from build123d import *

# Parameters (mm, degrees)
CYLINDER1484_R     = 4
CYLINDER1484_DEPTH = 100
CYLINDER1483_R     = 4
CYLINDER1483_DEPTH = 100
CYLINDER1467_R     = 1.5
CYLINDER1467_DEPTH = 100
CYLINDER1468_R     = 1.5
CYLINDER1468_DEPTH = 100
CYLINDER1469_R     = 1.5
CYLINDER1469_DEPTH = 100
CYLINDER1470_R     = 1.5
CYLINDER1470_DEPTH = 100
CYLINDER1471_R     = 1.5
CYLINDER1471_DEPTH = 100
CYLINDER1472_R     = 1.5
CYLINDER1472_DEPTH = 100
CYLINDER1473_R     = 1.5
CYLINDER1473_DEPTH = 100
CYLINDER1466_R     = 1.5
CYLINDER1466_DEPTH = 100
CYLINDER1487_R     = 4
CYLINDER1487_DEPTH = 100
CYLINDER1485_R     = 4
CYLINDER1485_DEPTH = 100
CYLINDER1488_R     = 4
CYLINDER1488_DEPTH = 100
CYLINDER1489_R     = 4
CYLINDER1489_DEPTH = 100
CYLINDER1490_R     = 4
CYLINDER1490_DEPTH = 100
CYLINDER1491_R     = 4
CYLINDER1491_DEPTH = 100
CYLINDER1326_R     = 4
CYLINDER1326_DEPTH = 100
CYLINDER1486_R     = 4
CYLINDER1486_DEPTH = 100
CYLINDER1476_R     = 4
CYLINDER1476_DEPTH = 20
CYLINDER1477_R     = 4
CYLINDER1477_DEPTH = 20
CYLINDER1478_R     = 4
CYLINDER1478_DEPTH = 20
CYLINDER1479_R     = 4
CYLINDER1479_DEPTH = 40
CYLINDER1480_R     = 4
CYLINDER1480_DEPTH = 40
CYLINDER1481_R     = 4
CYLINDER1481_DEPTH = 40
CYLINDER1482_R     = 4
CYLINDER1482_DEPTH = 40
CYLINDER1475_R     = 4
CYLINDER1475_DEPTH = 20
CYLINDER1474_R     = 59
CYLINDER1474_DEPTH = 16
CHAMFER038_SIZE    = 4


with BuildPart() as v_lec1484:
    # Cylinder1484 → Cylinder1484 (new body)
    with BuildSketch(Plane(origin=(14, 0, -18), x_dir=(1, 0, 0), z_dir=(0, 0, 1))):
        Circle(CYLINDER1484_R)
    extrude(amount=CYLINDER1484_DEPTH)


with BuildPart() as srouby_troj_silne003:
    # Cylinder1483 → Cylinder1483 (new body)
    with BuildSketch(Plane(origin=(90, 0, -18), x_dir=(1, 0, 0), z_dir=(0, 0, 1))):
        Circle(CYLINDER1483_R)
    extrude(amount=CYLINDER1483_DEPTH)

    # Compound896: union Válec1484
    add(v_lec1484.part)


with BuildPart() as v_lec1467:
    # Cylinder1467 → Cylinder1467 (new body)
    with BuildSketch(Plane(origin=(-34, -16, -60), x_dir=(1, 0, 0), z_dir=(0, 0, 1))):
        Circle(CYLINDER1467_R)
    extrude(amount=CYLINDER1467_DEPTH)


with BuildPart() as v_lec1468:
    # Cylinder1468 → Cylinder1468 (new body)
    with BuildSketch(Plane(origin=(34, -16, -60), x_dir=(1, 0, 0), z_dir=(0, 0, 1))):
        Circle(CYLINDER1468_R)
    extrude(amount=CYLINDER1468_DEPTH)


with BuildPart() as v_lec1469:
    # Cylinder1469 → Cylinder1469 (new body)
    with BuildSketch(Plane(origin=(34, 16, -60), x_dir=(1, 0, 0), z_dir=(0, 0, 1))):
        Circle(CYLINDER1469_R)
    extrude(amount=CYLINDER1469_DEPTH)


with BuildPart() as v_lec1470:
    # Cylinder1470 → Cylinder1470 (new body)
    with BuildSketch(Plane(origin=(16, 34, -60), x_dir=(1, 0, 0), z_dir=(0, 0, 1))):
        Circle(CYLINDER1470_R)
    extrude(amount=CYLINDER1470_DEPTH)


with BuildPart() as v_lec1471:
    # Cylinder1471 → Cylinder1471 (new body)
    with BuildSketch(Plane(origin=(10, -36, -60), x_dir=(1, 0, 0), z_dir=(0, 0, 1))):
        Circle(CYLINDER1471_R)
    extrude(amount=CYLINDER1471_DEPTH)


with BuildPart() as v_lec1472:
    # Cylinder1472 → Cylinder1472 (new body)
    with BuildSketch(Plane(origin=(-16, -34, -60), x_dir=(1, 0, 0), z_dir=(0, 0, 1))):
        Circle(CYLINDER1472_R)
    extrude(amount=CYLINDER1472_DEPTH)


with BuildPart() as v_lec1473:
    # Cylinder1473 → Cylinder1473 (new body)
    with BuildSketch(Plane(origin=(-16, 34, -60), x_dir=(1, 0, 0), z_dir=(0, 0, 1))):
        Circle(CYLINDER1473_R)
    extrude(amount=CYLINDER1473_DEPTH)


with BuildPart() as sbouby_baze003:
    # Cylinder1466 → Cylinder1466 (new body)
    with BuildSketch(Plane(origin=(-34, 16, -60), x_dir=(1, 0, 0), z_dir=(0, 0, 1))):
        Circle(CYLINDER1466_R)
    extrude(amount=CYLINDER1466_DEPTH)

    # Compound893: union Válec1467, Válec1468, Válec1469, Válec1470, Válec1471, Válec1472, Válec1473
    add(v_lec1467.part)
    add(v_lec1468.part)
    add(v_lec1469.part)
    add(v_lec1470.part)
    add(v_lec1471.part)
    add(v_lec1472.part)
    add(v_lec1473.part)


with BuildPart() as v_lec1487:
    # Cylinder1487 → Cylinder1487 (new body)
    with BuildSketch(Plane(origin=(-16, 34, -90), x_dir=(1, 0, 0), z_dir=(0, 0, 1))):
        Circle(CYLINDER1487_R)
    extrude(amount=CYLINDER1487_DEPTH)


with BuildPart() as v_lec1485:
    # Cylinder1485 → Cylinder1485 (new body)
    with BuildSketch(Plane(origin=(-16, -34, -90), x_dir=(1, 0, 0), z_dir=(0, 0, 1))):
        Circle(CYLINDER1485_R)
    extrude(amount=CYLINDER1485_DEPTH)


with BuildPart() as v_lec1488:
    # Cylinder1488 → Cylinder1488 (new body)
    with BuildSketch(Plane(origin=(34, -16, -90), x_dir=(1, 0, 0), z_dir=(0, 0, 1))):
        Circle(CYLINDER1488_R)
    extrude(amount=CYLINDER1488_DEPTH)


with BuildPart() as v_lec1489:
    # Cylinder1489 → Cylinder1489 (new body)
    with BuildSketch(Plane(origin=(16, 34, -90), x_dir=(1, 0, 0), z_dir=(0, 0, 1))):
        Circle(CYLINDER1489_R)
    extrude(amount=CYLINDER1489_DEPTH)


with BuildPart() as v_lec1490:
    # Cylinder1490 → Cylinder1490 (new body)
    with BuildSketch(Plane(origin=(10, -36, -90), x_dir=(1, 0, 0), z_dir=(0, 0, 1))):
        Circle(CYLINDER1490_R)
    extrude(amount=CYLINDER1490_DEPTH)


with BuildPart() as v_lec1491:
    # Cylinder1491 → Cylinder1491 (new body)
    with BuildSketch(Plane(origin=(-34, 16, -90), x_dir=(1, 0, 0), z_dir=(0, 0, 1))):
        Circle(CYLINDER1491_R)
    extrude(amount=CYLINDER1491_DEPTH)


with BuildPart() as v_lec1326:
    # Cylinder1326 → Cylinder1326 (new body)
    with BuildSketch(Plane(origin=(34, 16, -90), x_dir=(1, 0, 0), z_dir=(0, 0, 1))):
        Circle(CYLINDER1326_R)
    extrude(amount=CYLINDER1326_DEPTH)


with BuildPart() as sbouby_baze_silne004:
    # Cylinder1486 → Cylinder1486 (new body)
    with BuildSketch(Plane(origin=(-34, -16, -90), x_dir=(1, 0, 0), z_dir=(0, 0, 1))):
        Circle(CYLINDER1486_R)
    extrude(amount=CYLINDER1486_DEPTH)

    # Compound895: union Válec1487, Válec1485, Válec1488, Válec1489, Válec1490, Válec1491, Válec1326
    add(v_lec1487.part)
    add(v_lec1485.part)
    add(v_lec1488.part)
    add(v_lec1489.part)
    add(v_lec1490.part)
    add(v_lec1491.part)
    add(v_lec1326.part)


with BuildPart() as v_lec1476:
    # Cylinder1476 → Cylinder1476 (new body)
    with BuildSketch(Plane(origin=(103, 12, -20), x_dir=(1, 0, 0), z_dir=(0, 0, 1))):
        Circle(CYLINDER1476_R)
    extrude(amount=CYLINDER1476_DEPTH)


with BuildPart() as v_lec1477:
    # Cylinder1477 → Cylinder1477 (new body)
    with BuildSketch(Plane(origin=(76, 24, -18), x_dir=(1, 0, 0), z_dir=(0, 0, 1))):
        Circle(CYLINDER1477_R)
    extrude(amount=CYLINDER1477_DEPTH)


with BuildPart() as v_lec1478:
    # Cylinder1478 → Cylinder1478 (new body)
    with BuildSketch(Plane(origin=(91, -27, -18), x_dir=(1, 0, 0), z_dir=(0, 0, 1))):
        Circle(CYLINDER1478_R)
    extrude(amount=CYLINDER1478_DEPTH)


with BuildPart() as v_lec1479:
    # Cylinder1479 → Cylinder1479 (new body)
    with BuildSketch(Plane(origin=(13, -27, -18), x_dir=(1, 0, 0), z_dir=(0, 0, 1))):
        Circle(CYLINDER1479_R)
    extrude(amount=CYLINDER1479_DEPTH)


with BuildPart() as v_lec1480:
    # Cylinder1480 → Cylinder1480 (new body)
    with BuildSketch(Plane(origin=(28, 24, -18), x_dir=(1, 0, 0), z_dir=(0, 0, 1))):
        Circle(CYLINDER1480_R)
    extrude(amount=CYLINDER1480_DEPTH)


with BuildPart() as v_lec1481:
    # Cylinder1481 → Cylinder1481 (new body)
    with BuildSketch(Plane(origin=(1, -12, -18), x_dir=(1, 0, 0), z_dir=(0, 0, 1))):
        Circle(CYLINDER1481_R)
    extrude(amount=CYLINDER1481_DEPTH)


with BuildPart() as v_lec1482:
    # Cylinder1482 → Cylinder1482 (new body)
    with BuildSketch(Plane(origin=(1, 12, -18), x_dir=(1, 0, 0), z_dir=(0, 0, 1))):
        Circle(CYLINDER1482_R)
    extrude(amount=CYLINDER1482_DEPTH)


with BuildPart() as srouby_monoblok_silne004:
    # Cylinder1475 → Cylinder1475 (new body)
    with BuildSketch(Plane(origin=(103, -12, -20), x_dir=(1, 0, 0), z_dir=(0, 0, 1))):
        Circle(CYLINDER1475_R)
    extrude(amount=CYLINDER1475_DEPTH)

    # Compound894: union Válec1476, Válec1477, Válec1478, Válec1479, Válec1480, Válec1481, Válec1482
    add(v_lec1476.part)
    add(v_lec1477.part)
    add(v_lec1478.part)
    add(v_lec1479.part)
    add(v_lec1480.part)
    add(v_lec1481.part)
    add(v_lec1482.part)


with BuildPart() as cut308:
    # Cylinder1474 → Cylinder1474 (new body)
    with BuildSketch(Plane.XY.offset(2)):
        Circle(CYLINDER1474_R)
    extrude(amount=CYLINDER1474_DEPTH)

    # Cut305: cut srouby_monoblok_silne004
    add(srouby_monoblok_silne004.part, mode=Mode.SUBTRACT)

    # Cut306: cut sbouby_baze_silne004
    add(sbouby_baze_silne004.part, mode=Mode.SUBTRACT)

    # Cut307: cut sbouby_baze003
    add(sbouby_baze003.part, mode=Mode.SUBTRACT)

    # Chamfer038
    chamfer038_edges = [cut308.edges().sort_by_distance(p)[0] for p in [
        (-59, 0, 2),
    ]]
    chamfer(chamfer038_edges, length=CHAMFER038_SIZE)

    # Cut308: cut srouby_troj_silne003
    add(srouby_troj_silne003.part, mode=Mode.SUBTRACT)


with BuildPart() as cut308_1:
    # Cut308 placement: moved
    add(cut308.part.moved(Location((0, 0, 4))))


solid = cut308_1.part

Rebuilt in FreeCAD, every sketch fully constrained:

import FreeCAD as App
import Part
import Sketcher


def edges_at(feature, points):
    """Names of the edges that pass closest to the given points."""
    edges = feature.Shape.Edges
    near = lambda p: min(range(len(edges)), key=lambda i: edges[i].distToShape(Part.Vertex(*p))[0])
    return sorted({f"Edge{near(p) + 1}" for p in points})

doc = App.newDocument("Part")
body = doc.addObject("PartDesign::Body", "Body")

sketch1 = body.newObject("Sketcher::SketchObject", "Sketch")
sketch1.AttachmentSupport = (doc.getObject("XY_Plane"), [""])
sketch1.MapMode = "FlatFace"
sketch1.AttachmentOffset = App.Placement(App.Vector(0, 0, -18), App.Rotation())
sketch1.addGeometry(Part.Circle(App.Vector(14, 0, 0), App.Vector(0, 0, 1), 4), False)
sketch1.addConstraint([
    Sketcher.Constraint("PointOnObject", 0, 3, -1),
    Sketcher.Constraint("Diameter", 0, 8.0),
    Sketcher.Constraint("DistanceX", -1, 1, 0, 3, 14.0),
])
pad1 = body.newObject("PartDesign::Pad", "Pad")
pad1.Profile = sketch1
pad1.Length = 100
body2 = doc.addObject("PartDesign::Body", "Body001")
body2.AllowCompound = True

sketch2 = body2.newObject("Sketcher::SketchObject", "Sketch001")
sketch2.AttachmentSupport = (doc.getObject("XY_Plane001"), [""])
sketch2.MapMode = "FlatFace"
sketch2.AttachmentOffset = App.Placement(App.Vector(0, 0, -18), App.Rotation())
sketch2.addGeometry(Part.Circle(App.Vector(90, 0, 0), App.Vector(0, 0, 1), 4), False)
sketch2.addConstraint([
    Sketcher.Constraint("PointOnObject", 0, 3, -1),
    Sketcher.Constraint("Diameter", 0, 8.0),
    Sketcher.Constraint("DistanceX", -1, 1, 0, 3, 90.0),
])
pad2 = body2.newObject("PartDesign::Pad", "Pad001")
pad2.Profile = sketch2
pad2.Length = 100
doc.recompute()

boolean = body2.newObject("PartDesign::Boolean", "Boolean")
boolean.Type = "Fuse"
boolean.addObjects([body])
body3 = doc.addObject("PartDesign::Body", "Body002")

sketch3 = body3.newObject("Sketcher::SketchObject", "Sketch002")
sketch3.AttachmentSupport = (doc.getObject("XY_Plane002"), [""])
sketch3.MapMode = "FlatFace"
sketch3.AttachmentOffset = App.Placement(App.Vector(0, 0, -60), App.Rotation())
sketch3.addGeometry(Part.Circle(App.Vector(-34, -16, 0), App.Vector(0, 0, 1), 1.5), False)
sketch3.addConstraint([
    Sketcher.Constraint("Diameter", 0, 3.0),
    Sketcher.Constraint("DistanceX", 0, 3, -1, 1, 34.0),
    Sketcher.Constraint("DistanceY", 0, 3, -1, 1, 16.0),
])
pad3 = body3.newObject("PartDesign::Pad", "Pad002")
pad3.Profile = sketch3
pad3.Length = 100
body4 = doc.addObject("PartDesign::Body", "Body003")

sketch4 = body4.newObject("Sketcher::SketchObject", "Sketch003")
sketch4.AttachmentSupport = (doc.getObject("XY_Plane003"), [""])
sketch4.MapMode = "FlatFace"
sketch4.AttachmentOffset = App.Placement(App.Vector(0, 0, -60), App.Rotation())
sketch4.addGeometry(Part.Circle(App.Vector(34, -16, 0), App.Vector(0, 0, 1), 1.5), False)
sketch4.addConstraint([
    Sketcher.Constraint("Diameter", 0, 3.0),
    Sketcher.Constraint("DistanceX", -1, 1, 0, 3, 34.0),
    Sketcher.Constraint("DistanceY", 0, 3, -1, 1, 16.0),
])
pad4 = body4.newObject("PartDesign::Pad", "Pad003")
pad4.Profile = sketch4
pad4.Length = 100
body5 = doc.addObject("PartDesign::Body", "Body004")

sketch5 = body5.newObject("Sketcher::SketchObject", "Sketch004")
sketch5.AttachmentSupport = (doc.getObject("XY_Plane004"), [""])
sketch5.MapMode = "FlatFace"
sketch5.AttachmentOffset = App.Placement(App.Vector(0, 0, -60), App.Rotation())
sketch5.addGeometry(Part.Circle(App.Vector(34, 16, 0), App.Vector(0, 0, 1), 1.5), False)
sketch5.addConstraint([
    Sketcher.Constraint("Diameter", 0, 3.0),
    Sketcher.Constraint("DistanceX", -1, 1, 0, 3, 34.0),
    Sketcher.Constraint("DistanceY", -1, 1, 0, 3, 16.0),
])
pad5 = body5.newObject("PartDesign::Pad", "Pad004")
pad5.Profile = sketch5
pad5.Length = 100
body6 = doc.addObject("PartDesign::Body", "Body005")

sketch6 = body6.newObject("Sketcher::SketchObject", "Sketch005")
sketch6.AttachmentSupport = (doc.getObject("XY_Plane005"), [""])
sketch6.MapMode = "FlatFace"
sketch6.AttachmentOffset = App.Placement(App.Vector(0, 0, -60), App.Rotation())
sketch6.addGeometry(Part.Circle(App.Vector(16, 34, 0), App.Vector(0, 0, 1), 1.5), False)
sketch6.addConstraint([
    Sketcher.Constraint("Diameter", 0, 3.0),
    Sketcher.Constraint("DistanceX", -1, 1, 0, 3, 16.0),
    Sketcher.Constraint("DistanceY", -1, 1, 0, 3, 34.0),
])
pad6 = body6.newObject("PartDesign::Pad", "Pad005")
pad6.Profile = sketch6
pad6.Length = 100
body7 = doc.addObject("PartDesign::Body", "Body006")

sketch7 = body7.newObject("Sketcher::SketchObject", "Sketch006")
sketch7.AttachmentSupport = (doc.getObject("XY_Plane006"), [""])
sketch7.MapMode = "FlatFace"
sketch7.AttachmentOffset = App.Placement(App.Vector(0, 0, -60), App.Rotation())
sketch7.addGeometry(Part.Circle(App.Vector(10, -36, 0), App.Vector(0, 0, 1), 1.5), False)
sketch7.addConstraint([
    Sketcher.Constraint("Diameter", 0, 3.0),
    Sketcher.Constraint("DistanceX", -1, 1, 0, 3, 10.0),
    Sketcher.Constraint("DistanceY", 0, 3, -1, 1, 36.0),
])
pad7 = body7.newObject("PartDesign::Pad", "Pad006")
pad7.Profile = sketch7
pad7.Length = 100
body8 = doc.addObject("PartDesign::Body", "Body007")

sketch8 = body8.newObject("Sketcher::SketchObject", "Sketch007")
sketch8.AttachmentSupport = (doc.getObject("XY_Plane007"), [""])
sketch8.MapMode = "FlatFace"
sketch8.AttachmentOffset = App.Placement(App.Vector(0, 0, -60), App.Rotation())
sketch8.addGeometry(Part.Circle(App.Vector(-16, -34, 0), App.Vector(0, 0, 1), 1.5), False)
sketch8.addConstraint([
    Sketcher.Constraint("Diameter", 0, 3.0),
    Sketcher.Constraint("DistanceX", 0, 3, -1, 1, 16.0),
    Sketcher.Constraint("DistanceY", 0, 3, -1, 1, 34.0),
])
pad8 = body8.newObject("PartDesign::Pad", "Pad007")
pad8.Profile = sketch8
pad8.Length = 100
body9 = doc.addObject("PartDesign::Body", "Body008")

sketch9 = body9.newObject("Sketcher::SketchObject", "Sketch008")
sketch9.AttachmentSupport = (doc.getObject("XY_Plane008"), [""])
sketch9.MapMode = "FlatFace"
sketch9.AttachmentOffset = App.Placement(App.Vector(0, 0, -60), App.Rotation())
sketch9.addGeometry(Part.Circle(App.Vector(-16, 34, 0), App.Vector(0, 0, 1), 1.5), False)
sketch9.addConstraint([
    Sketcher.Constraint("Diameter", 0, 3.0),
    Sketcher.Constraint("DistanceX", 0, 3, -1, 1, 16.0),
    Sketcher.Constraint("DistanceY", -1, 1, 0, 3, 34.0),
])
pad9 = body9.newObject("PartDesign::Pad", "Pad008")
pad9.Profile = sketch9
pad9.Length = 100
body10 = doc.addObject("PartDesign::Body", "Body009")
body10.AllowCompound = True

sketch10 = body10.newObject("Sketcher::SketchObject", "Sketch009")
sketch10.AttachmentSupport = (doc.getObject("XY_Plane009"), [""])
sketch10.MapMode = "FlatFace"
sketch10.AttachmentOffset = App.Placement(App.Vector(0, 0, -60), App.Rotation())
sketch10.addGeometry(Part.Circle(App.Vector(-34, 16, 0), App.Vector(0, 0, 1), 1.5), False)
sketch10.addConstraint([
    Sketcher.Constraint("Diameter", 0, 3.0),
    Sketcher.Constraint("DistanceX", 0, 3, -1, 1, 34.0),
    Sketcher.Constraint("DistanceY", -1, 1, 0, 3, 16.0),
])
pad10 = body10.newObject("PartDesign::Pad", "Pad009")
pad10.Profile = sketch10
pad10.Length = 100
doc.recompute()

boolean2 = body10.newObject("PartDesign::Boolean", "Boolean001")
boolean2.Type = "Fuse"
boolean2.addObjects([body3])
doc.recompute()

boolean3 = body10.newObject("PartDesign::Boolean", "Boolean002")
boolean3.Type = "Fuse"
boolean3.addObjects([body4])
doc.recompute()

boolean4 = body10.newObject("PartDesign::Boolean", "Boolean003")
boolean4.Type = "Fuse"
boolean4.addObjects([body5])
doc.recompute()

boolean5 = body10.newObject("PartDesign::Boolean", "Boolean004")
boolean5.Type = "Fuse"
boolean5.addObjects([body6])
doc.recompute()

boolean6 = body10.newObject("PartDesign::Boolean", "Boolean005")
boolean6.Type = "Fuse"
boolean6.addObjects([body7])
doc.recompute()

boolean7 = body10.newObject("PartDesign::Boolean", "Boolean006")
boolean7.Type = "Fuse"
boolean7.addObjects([body8])
doc.recompute()

boolean8 = body10.newObject("PartDesign::Boolean", "Boolean007")
boolean8.Type = "Fuse"
boolean8.addObjects([body9])
body11 = doc.addObject("PartDesign::Body", "Body010")

sketch11 = body11.newObject("Sketcher::SketchObject", "Sketch010")
sketch11.AttachmentSupport = (doc.getObject("XY_Plane010"), [""])
sketch11.MapMode = "FlatFace"
sketch11.AttachmentOffset = App.Placement(App.Vector(0, 0, -90), App.Rotation())
sketch11.addGeometry(Part.Circle(App.Vector(-16, 34, 0), App.Vector(0, 0, 1), 4), False)
sketch11.addConstraint([
    Sketcher.Constraint("Diameter", 0, 8.0),
    Sketcher.Constraint("DistanceX", 0, 3, -1, 1, 16.0),
    Sketcher.Constraint("DistanceY", -1, 1, 0, 3, 34.0),
])
pad11 = body11.newObject("PartDesign::Pad", "Pad010")
pad11.Profile = sketch11
pad11.Length = 100
body12 = doc.addObject("PartDesign::Body", "Body011")

sketch12 = body12.newObject("Sketcher::SketchObject", "Sketch011")
sketch12.AttachmentSupport = (doc.getObject("XY_Plane011"), [""])
sketch12.MapMode = "FlatFace"
sketch12.AttachmentOffset = App.Placement(App.Vector(0, 0, -90), App.Rotation())
sketch12.addGeometry(Part.Circle(App.Vector(-16, -34, 0), App.Vector(0, 0, 1), 4), False)
sketch12.addConstraint([
    Sketcher.Constraint("Diameter", 0, 8.0),
    Sketcher.Constraint("DistanceX", 0, 3, -1, 1, 16.0),
    Sketcher.Constraint("DistanceY", 0, 3, -1, 1, 34.0),
])
pad12 = body12.newObject("PartDesign::Pad", "Pad011")
pad12.Profile = sketch12
pad12.Length = 100
body13 = doc.addObject("PartDesign::Body", "Body012")

sketch13 = body13.newObject("Sketcher::SketchObject", "Sketch012")
sketch13.AttachmentSupport = (doc.getObject("XY_Plane012"), [""])
sketch13.MapMode = "FlatFace"
sketch13.AttachmentOffset = App.Placement(App.Vector(0, 0, -90), App.Rotation())
sketch13.addGeometry(Part.Circle(App.Vector(34, -16, 0), App.Vector(0, 0, 1), 4), False)
sketch13.addConstraint([
    Sketcher.Constraint("Diameter", 0, 8.0),
    Sketcher.Constraint("DistanceX", -1, 1, 0, 3, 34.0),
    Sketcher.Constraint("DistanceY", 0, 3, -1, 1, 16.0),
])
pad13 = body13.newObject("PartDesign::Pad", "Pad012")
pad13.Profile = sketch13
pad13.Length = 100
body14 = doc.addObject("PartDesign::Body", "Body013")

sketch14 = body14.newObject("Sketcher::SketchObject", "Sketch013")
sketch14.AttachmentSupport = (doc.getObject("XY_Plane013"), [""])
sketch14.MapMode = "FlatFace"
sketch14.AttachmentOffset = App.Placement(App.Vector(0, 0, -90), App.Rotation())
sketch14.addGeometry(Part.Circle(App.Vector(16, 34, 0), App.Vector(0, 0, 1), 4), False)
sketch14.addConstraint([
    Sketcher.Constraint("Diameter", 0, 8.0),
    Sketcher.Constraint("DistanceX", -1, 1, 0, 3, 16.0),
    Sketcher.Constraint("DistanceY", -1, 1, 0, 3, 34.0),
])
pad14 = body14.newObject("PartDesign::Pad", "Pad013")
pad14.Profile = sketch14
pad14.Length = 100
body15 = doc.addObject("PartDesign::Body", "Body014")

sketch15 = body15.newObject("Sketcher::SketchObject", "Sketch014")
sketch15.AttachmentSupport = (doc.getObject("XY_Plane014"), [""])
sketch15.MapMode = "FlatFace"
sketch15.AttachmentOffset = App.Placement(App.Vector(0, 0, -90), App.Rotation())
sketch15.addGeometry(Part.Circle(App.Vector(10, -36, 0), App.Vector(0, 0, 1), 4), False)
sketch15.addConstraint([
    Sketcher.Constraint("Diameter", 0, 8.0),
    Sketcher.Constraint("DistanceX", -1, 1, 0, 3, 10.0),
    Sketcher.Constraint("DistanceY", 0, 3, -1, 1, 36.0),
])
pad15 = body15.newObject("PartDesign::Pad", "Pad014")
pad15.Profile = sketch15
pad15.Length = 100
body16 = doc.addObject("PartDesign::Body", "Body015")

sketch16 = body16.newObject("Sketcher::SketchObject", "Sketch015")
sketch16.AttachmentSupport = (doc.getObject("XY_Plane015"), [""])
sketch16.MapMode = "FlatFace"
sketch16.AttachmentOffset = App.Placement(App.Vector(0, 0, -90), App.Rotation())
sketch16.addGeometry(Part.Circle(App.Vector(-34, 16, 0), App.Vector(0, 0, 1), 4), False)
sketch16.addConstraint([
    Sketcher.Constraint("Diameter", 0, 8.0),
    Sketcher.Constraint("DistanceX", 0, 3, -1, 1, 34.0),
    Sketcher.Constraint("DistanceY", -1, 1, 0, 3, 16.0),
])
pad16 = body16.newObject("PartDesign::Pad", "Pad015")
pad16.Profile = sketch16
pad16.Length = 100
body17 = doc.addObject("PartDesign::Body", "Body016")

sketch17 = body17.newObject("Sketcher::SketchObject", "Sketch016")
sketch17.AttachmentSupport = (doc.getObject("XY_Plane016"), [""])
sketch17.MapMode = "FlatFace"
sketch17.AttachmentOffset = App.Placement(App.Vector(0, 0, -90), App.Rotation())
sketch17.addGeometry(Part.Circle(App.Vector(34, 16, 0), App.Vector(0, 0, 1), 4), False)
sketch17.addConstraint([
    Sketcher.Constraint("Diameter", 0, 8.0),
    Sketcher.Constraint("DistanceX", -1, 1, 0, 3, 34.0),
    Sketcher.Constraint("DistanceY", -1, 1, 0, 3, 16.0),
])
pad17 = body17.newObject("PartDesign::Pad", "Pad016")
pad17.Profile = sketch17
pad17.Length = 100
body18 = doc.addObject("PartDesign::Body", "Body017")
body18.AllowCompound = True

sketch18 = body18.newObject("Sketcher::SketchObject", "Sketch017")
sketch18.AttachmentSupport = (doc.getObject("XY_Plane017"), [""])
sketch18.MapMode = "FlatFace"
sketch18.AttachmentOffset = App.Placement(App.Vector(0, 0, -90), App.Rotation())
sketch18.addGeometry(Part.Circle(App.Vector(-34, -16, 0), App.Vector(0, 0, 1), 4), False)
sketch18.addConstraint([
    Sketcher.Constraint("Diameter", 0, 8.0),
    Sketcher.Constraint("DistanceX", 0, 3, -1, 1, 34.0),
    Sketcher.Constraint("DistanceY", 0, 3, -1, 1, 16.0),
])
pad18 = body18.newObject("PartDesign::Pad", "Pad017")
pad18.Profile = sketch18
pad18.Length = 100
doc.recompute()

boolean9 = body18.newObject("PartDesign::Boolean", "Boolean008")
boolean9.Type = "Fuse"
boolean9.addObjects([body11])
doc.recompute()

boolean10 = body18.newObject("PartDesign::Boolean", "Boolean009")
boolean10.Type = "Fuse"
boolean10.addObjects([body12])
doc.recompute()

boolean11 = body18.newObject("PartDesign::Boolean", "Boolean010")
boolean11.Type = "Fuse"
boolean11.addObjects([body13])
doc.recompute()

boolean12 = body18.newObject("PartDesign::Boolean", "Boolean011")
boolean12.Type = "Fuse"
boolean12.addObjects([body14])
doc.recompute()

boolean13 = body18.newObject("PartDesign::Boolean", "Boolean012")
boolean13.Type = "Fuse"
boolean13.addObjects([body15])
doc.recompute()

boolean14 = body18.newObject("PartDesign::Boolean", "Boolean013")
boolean14.Type = "Fuse"
boolean14.addObjects([body16])
doc.recompute()

boolean15 = body18.newObject("PartDesign::Boolean", "Boolean014")
boolean15.Type = "Fuse"
boolean15.addObjects([body17])
body19 = doc.addObject("PartDesign::Body", "Body018")

sketch19 = body19.newObject("Sketcher::SketchObject", "Sketch018")
sketch19.AttachmentSupport = (doc.getObject("XY_Plane018"), [""])
sketch19.MapMode = "FlatFace"
sketch19.AttachmentOffset = App.Placement(App.Vector(0, 0, -20), App.Rotation())
sketch19.addGeometry(Part.Circle(App.Vector(103, 12, 0), App.Vector(0, 0, 1), 4), False)
sketch19.addConstraint([
    Sketcher.Constraint("Diameter", 0, 8.0),
    Sketcher.Constraint("DistanceX", -1, 1, 0, 3, 103.0),
    Sketcher.Constraint("DistanceY", -1, 1, 0, 3, 12.0),
])
pad19 = body19.newObject("PartDesign::Pad", "Pad018")
pad19.Profile = sketch19
pad19.Length = 20
body20 = doc.addObject("PartDesign::Body", "Body019")

sketch20 = body20.newObject("Sketcher::SketchObject", "Sketch019")
sketch20.AttachmentSupport = (doc.getObject("XY_Plane019"), [""])
sketch20.MapMode = "FlatFace"
sketch20.AttachmentOffset = App.Placement(App.Vector(0, 0, -18), App.Rotation())
sketch20.addGeometry(Part.Circle(App.Vector(76, 24, 0), App.Vector(0, 0, 1), 4), False)
sketch20.addConstraint([
    Sketcher.Constraint("Diameter", 0, 8.0),
    Sketcher.Constraint("DistanceX", -1, 1, 0, 3, 76.0),
    Sketcher.Constraint("DistanceY", -1, 1, 0, 3, 24.0),
])
pad20 = body20.newObject("PartDesign::Pad", "Pad019")
pad20.Profile = sketch20
pad20.Length = 20
body21 = doc.addObject("PartDesign::Body", "Body020")

sketch21 = body21.newObject("Sketcher::SketchObject", "Sketch020")
sketch21.AttachmentSupport = (doc.getObject("XY_Plane020"), [""])
sketch21.MapMode = "FlatFace"
sketch21.AttachmentOffset = App.Placement(App.Vector(0, 0, -18), App.Rotation())
sketch21.addGeometry(Part.Circle(App.Vector(91, -27, 0), App.Vector(0, 0, 1), 4), False)
sketch21.addConstraint([
    Sketcher.Constraint("Diameter", 0, 8.0),
    Sketcher.Constraint("DistanceX", -1, 1, 0, 3, 91.0),
    Sketcher.Constraint("DistanceY", 0, 3, -1, 1, 27.0),
])
pad21 = body21.newObject("PartDesign::Pad", "Pad020")
pad21.Profile = sketch21
pad21.Length = 20
body22 = doc.addObject("PartDesign::Body", "Body021")

sketch22 = body22.newObject("Sketcher::SketchObject", "Sketch021")
sketch22.AttachmentSupport = (doc.getObject("XY_Plane021"), [""])
sketch22.MapMode = "FlatFace"
sketch22.AttachmentOffset = App.Placement(App.Vector(0, 0, -18), App.Rotation())
sketch22.addGeometry(Part.Circle(App.Vector(13, -27, 0), App.Vector(0, 0, 1), 4), False)
sketch22.addConstraint([
    Sketcher.Constraint("Diameter", 0, 8.0),
    Sketcher.Constraint("DistanceX", -1, 1, 0, 3, 13.0),
    Sketcher.Constraint("DistanceY", 0, 3, -1, 1, 27.0),
])
pad22 = body22.newObject("PartDesign::Pad", "Pad021")
pad22.Profile = sketch22
pad22.Length = 40
body23 = doc.addObject("PartDesign::Body", "Body022")

sketch23 = body23.newObject("Sketcher::SketchObject", "Sketch022")
sketch23.AttachmentSupport = (doc.getObject("XY_Plane022"), [""])
sketch23.MapMode = "FlatFace"
sketch23.AttachmentOffset = App.Placement(App.Vector(0, 0, -18), App.Rotation())
sketch23.addGeometry(Part.Circle(App.Vector(28, 24, 0), App.Vector(0, 0, 1), 4), False)
sketch23.addConstraint([
    Sketcher.Constraint("Diameter", 0, 8.0),
    Sketcher.Constraint("DistanceX", -1, 1, 0, 3, 28.0),
    Sketcher.Constraint("DistanceY", -1, 1, 0, 3, 24.0),
])
pad23 = body23.newObject("PartDesign::Pad", "Pad022")
pad23.Profile = sketch23
pad23.Length = 40
body24 = doc.addObject("PartDesign::Body", "Body023")

sketch24 = body24.newObject("Sketcher::SketchObject", "Sketch023")
sketch24.AttachmentSupport = (doc.getObject("XY_Plane023"), [""])
sketch24.MapMode = "FlatFace"
sketch24.AttachmentOffset = App.Placement(App.Vector(0, 0, -18), App.Rotation())
sketch24.addGeometry(Part.Circle(App.Vector(1, -12, 0), App.Vector(0, 0, 1), 4), False)
sketch24.addConstraint([
    Sketcher.Constraint("Diameter", 0, 8.0),
    Sketcher.Constraint("DistanceX", -1, 1, 0, 3, 1.0),
    Sketcher.Constraint("DistanceY", 0, 3, -1, 1, 12.0),
])
pad24 = body24.newObject("PartDesign::Pad", "Pad023")
pad24.Profile = sketch24
pad24.Length = 40
body25 = doc.addObject("PartDesign::Body", "Body024")

sketch25 = body25.newObject("Sketcher::SketchObject", "Sketch024")
sketch25.AttachmentSupport = (doc.getObject("XY_Plane024"), [""])
sketch25.MapMode = "FlatFace"
sketch25.AttachmentOffset = App.Placement(App.Vector(0, 0, -18), App.Rotation())
sketch25.addGeometry(Part.Circle(App.Vector(1, 12, 0), App.Vector(0, 0, 1), 4), False)
sketch25.addConstraint([
    Sketcher.Constraint("Diameter", 0, 8.0),
    Sketcher.Constraint("DistanceX", -1, 1, 0, 3, 1.0),
    Sketcher.Constraint("DistanceY", -1, 1, 0, 3, 12.0),
])
pad25 = body25.newObject("PartDesign::Pad", "Pad024")
pad25.Profile = sketch25
pad25.Length = 40
body26 = doc.addObject("PartDesign::Body", "Body025")
body26.AllowCompound = True

sketch26 = body26.newObject("Sketcher::SketchObject", "Sketch025")
sketch26.AttachmentSupport = (doc.getObject("XY_Plane025"), [""])
sketch26.MapMode = "FlatFace"
sketch26.AttachmentOffset = App.Placement(App.Vector(0, 0, -20), App.Rotation())
sketch26.addGeometry(Part.Circle(App.Vector(103, -12, 0), App.Vector(0, 0, 1), 4), False)
sketch26.addConstraint([
    Sketcher.Constraint("Diameter", 0, 8.0),
    Sketcher.Constraint("DistanceX", -1, 1, 0, 3, 103.0),
    Sketcher.Constraint("DistanceY", 0, 3, -1, 1, 12.0),
])
pad26 = body26.newObject("PartDesign::Pad", "Pad025")
pad26.Profile = sketch26
pad26.Length = 20
doc.recompute()

boolean16 = body26.newObject("PartDesign::Boolean", "Boolean015")
boolean16.Type = "Fuse"
boolean16.addObjects([body19])
doc.recompute()

boolean17 = body26.newObject("PartDesign::Boolean", "Boolean016")
boolean17.Type = "Fuse"
boolean17.addObjects([body20])
doc.recompute()

boolean18 = body26.newObject("PartDesign::Boolean", "Boolean017")
boolean18.Type = "Fuse"
boolean18.addObjects([body21])
doc.recompute()

boolean19 = body26.newObject("PartDesign::Boolean", "Boolean018")
boolean19.Type = "Fuse"
boolean19.addObjects([body22])
doc.recompute()

boolean20 = body26.newObject("PartDesign::Boolean", "Boolean019")
boolean20.Type = "Fuse"
boolean20.addObjects([body23])
doc.recompute()

boolean21 = body26.newObject("PartDesign::Boolean", "Boolean020")
boolean21.Type = "Fuse"
boolean21.addObjects([body24])
doc.recompute()

boolean22 = body26.newObject("PartDesign::Boolean", "Boolean021")
boolean22.Type = "Fuse"
boolean22.addObjects([body25])
body27 = doc.addObject("PartDesign::Body", "Body026")

sketch27 = body27.newObject("Sketcher::SketchObject", "Sketch026")
sketch27.AttachmentSupport = (doc.getObject("XY_Plane026"), [""])
sketch27.MapMode = "FlatFace"
sketch27.AttachmentOffset = App.Placement(App.Vector(0, 0, 2), App.Rotation())
sketch27.addGeometry(Part.Circle(App.Vector(0, 0, 0), App.Vector(0, 0, 1), 59), False)
sketch27.addConstraint([
    Sketcher.Constraint("Coincident", 0, 3, -1, 1),
    Sketcher.Constraint("Diameter", 0, 118.0),
])
pad27 = body27.newObject("PartDesign::Pad", "Pad026")
pad27.Profile = sketch27
pad27.Length = 16
doc.recompute()

boolean23 = body27.newObject("PartDesign::Boolean", "Boolean022")
boolean23.Type = "Cut"
boolean23.addObjects([body26])
doc.recompute()

boolean24 = body27.newObject("PartDesign::Boolean", "Boolean023")
boolean24.Type = "Cut"
boolean24.addObjects([body18])
doc.recompute()

boolean25 = body27.newObject("PartDesign::Boolean", "Boolean024")
boolean25.Type = "Cut"
boolean25.addObjects([body10])
doc.recompute()

chamfer = body27.newObject("PartDesign::Chamfer", "Chamfer")
chamfer.Base = (boolean25, edges_at(boolean25, [(-59, 0, 2)]))
chamfer.Size = 4
doc.recompute()

boolean26 = body27.newObject("PartDesign::Boolean", "Boolean025")
boolean26.Type = "Cut"
boolean26.addObjects([body2])
body28 = doc.addObject("PartDesign::Body", "Body027")
doc.recompute()

body27.Placement = App.Placement(App.Vector(0, 0, 4), App.Rotation(App.Vector(0, 0, 1), 0))
boolean27 = body28.newObject("PartDesign::Boolean", "Boolean026")
boolean27.Type = "Fuse"
boolean27.addObjects([body27])

doc.recompute()
